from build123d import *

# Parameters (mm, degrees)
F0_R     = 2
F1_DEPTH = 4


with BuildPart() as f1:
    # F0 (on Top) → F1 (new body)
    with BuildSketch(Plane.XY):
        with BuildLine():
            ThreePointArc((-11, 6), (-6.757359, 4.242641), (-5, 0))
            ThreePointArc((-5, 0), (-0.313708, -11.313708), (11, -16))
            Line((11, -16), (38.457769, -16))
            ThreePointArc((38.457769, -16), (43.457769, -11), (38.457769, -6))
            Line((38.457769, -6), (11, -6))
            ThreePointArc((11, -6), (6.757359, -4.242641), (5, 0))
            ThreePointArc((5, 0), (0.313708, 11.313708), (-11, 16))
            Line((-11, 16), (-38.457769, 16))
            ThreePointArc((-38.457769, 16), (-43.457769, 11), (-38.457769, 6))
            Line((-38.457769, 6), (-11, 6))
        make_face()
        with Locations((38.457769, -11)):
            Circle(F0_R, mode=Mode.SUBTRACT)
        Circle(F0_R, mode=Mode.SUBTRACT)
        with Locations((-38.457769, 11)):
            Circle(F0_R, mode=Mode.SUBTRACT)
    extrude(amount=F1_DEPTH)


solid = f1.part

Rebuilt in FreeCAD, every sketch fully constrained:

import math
import FreeCAD as App
import Part
import Sketcher
from FreeCAD import Vector
Q = App.Units.Quantity

doc = App.newDocument("Part")
body = doc.addObject("PartDesign::Body", "Body")

sketch1 = body.newObject("Sketcher::SketchObject", "Sketch")
sketch1.AttachmentSupport = (doc.getObject("XY_Plane"), [""])
sketch1.MapMode = "FlatFace"
sketch1.addGeometry([
    Part.ArcOfCircle(Part.Circle(Vector(-10.999999, 0.000001, 0), Vector(0, 0, 1), 5.999999), math.radians(-0.00001), math.radians(90.00001)),
    Part.ArcOfCircle(Part.Circle(Vector(11.000002, 0.000002, 0), Vector(0, 0, 1), 16.000002), math.radians(-179.999994), math.radians(-90.000006)),
    Part.LineSegment(Vector(11, -16, 0), Vector(38.457769, -16, 0)),
    Part.ArcOfCircle(Part.Circle(Vector(38.457769, -11, 0), Vector(0, 0, 1), 5), math.radians(-90), math.radians(90)),
    Part.LineSegment(Vector(38.457769, -6, 0), Vector(11, -6, 0)),
    Part.ArcOfCircle(Part.Circle(Vector(10.999999, -0.000001, 0), Vector(0, 0, 1), 5.999999), math.radians(179.99999), math.radians(270.00001)),
    Part.ArcOfCircle(Part.Circle(Vector(-11.000002, -0.000002, 0), Vector(0, 0, 1), 16.000002), math.radians(0.000006), math.radians(89.999994)),
    Part.LineSegment(Vector(-11, 16, 0), Vector(-38.457769, 16, 0)),
    Part.ArcOfCircle(Part.Circle(Vector(-38.457769, 11, 0), Vector(0, 0, 1), 5), math.radians(90), math.radians(270)),
    Part.LineSegment(Vector(-38.457769, 6, 0), Vector(-11, 6, 0)),
    Part.Circle(Vector(38.457769, -11, 0), Vector(0, 0, 1), 2),
    Part.Circle(Vector(-38.457769, 11, 0), Vector(0, 0, 1), 2),
    Part.Circle(Vector(0, 0, 0), Vector(0, 0, 1), 2),
], False)
sketch1.addConstraint([
    Sketcher.Constraint("Tangent", 0, 1, 1, 1),
    Sketcher.Constraint("Tangent", 1, 2, 2, 1),
    Sketcher.Constraint("Tangent", 2, 2, 3, 1),
    Sketcher.Constraint("Tangent", 3, 2, 4, 1),
    Sketcher.Constraint("Tangent", 4, 2, 5, 2),
    Sketcher.Constraint("Tangent", 5, 1, 6, 1),
    Sketcher.Constraint("Tangent", 6, 2, 7, 1),
    Sketcher.Constraint("Tangent", 7, 2, 8, 1),
    Sketcher.Constraint("Tangent", 8, 2, 9, 1),
    Sketcher.Constraint("Tangent", 9, 2, 0, 2),
    Sketcher.Constraint("Horizontal", 2),
    Sketcher.Constraint("Horizontal", 4),
    Sketcher.Constraint("Horizontal", 7),
    Sketcher.Constraint("Horizontal", 9),
    Sketcher.Constraint("Coincident", 12, 3, -1, 1),
    Sketcher.Constraint("Coincident", 5, 3, 1, 3),
    Sketcher.Constraint("Coincident", 6, 3, 0, 3),
    Sketcher.Constraint("Coincident", 10, 3, 3, 3),
    Sketcher.Constraint("Coincident", 11, 3, 8, 3),
    Sketcher.Constraint("Equal", 0, 5),
    Sketcher.Constraint("Equal", 10, 11),
    Sketcher.Constraint("Equal", 11, 12),
    Sketcher.Constraint("Symmetric", 0, 3, 1, 3, -1, 1),
    Sketcher.Constraint("PointOnObject", 0, 3, -1),
    Sketcher.Constraint("Equal", 4, 7),
    Sketcher.Constraint("Diameter", 10, Q("4 mm")),
    Sketcher.Constraint("Radius", 0, Q("5.999999 mm")),
    Sketcher.Constraint("Radius", 1, Q("16.000002 mm")),
    Sketcher.Constraint("DistanceX", 2, 1, 2, 2, Q("27.457769 mm")),
])
pad1 = body.newObject("PartDesign::Pad", "Pad")
pad1.Profile = sketch1
pad1.Length = 4

doc.recompute()
